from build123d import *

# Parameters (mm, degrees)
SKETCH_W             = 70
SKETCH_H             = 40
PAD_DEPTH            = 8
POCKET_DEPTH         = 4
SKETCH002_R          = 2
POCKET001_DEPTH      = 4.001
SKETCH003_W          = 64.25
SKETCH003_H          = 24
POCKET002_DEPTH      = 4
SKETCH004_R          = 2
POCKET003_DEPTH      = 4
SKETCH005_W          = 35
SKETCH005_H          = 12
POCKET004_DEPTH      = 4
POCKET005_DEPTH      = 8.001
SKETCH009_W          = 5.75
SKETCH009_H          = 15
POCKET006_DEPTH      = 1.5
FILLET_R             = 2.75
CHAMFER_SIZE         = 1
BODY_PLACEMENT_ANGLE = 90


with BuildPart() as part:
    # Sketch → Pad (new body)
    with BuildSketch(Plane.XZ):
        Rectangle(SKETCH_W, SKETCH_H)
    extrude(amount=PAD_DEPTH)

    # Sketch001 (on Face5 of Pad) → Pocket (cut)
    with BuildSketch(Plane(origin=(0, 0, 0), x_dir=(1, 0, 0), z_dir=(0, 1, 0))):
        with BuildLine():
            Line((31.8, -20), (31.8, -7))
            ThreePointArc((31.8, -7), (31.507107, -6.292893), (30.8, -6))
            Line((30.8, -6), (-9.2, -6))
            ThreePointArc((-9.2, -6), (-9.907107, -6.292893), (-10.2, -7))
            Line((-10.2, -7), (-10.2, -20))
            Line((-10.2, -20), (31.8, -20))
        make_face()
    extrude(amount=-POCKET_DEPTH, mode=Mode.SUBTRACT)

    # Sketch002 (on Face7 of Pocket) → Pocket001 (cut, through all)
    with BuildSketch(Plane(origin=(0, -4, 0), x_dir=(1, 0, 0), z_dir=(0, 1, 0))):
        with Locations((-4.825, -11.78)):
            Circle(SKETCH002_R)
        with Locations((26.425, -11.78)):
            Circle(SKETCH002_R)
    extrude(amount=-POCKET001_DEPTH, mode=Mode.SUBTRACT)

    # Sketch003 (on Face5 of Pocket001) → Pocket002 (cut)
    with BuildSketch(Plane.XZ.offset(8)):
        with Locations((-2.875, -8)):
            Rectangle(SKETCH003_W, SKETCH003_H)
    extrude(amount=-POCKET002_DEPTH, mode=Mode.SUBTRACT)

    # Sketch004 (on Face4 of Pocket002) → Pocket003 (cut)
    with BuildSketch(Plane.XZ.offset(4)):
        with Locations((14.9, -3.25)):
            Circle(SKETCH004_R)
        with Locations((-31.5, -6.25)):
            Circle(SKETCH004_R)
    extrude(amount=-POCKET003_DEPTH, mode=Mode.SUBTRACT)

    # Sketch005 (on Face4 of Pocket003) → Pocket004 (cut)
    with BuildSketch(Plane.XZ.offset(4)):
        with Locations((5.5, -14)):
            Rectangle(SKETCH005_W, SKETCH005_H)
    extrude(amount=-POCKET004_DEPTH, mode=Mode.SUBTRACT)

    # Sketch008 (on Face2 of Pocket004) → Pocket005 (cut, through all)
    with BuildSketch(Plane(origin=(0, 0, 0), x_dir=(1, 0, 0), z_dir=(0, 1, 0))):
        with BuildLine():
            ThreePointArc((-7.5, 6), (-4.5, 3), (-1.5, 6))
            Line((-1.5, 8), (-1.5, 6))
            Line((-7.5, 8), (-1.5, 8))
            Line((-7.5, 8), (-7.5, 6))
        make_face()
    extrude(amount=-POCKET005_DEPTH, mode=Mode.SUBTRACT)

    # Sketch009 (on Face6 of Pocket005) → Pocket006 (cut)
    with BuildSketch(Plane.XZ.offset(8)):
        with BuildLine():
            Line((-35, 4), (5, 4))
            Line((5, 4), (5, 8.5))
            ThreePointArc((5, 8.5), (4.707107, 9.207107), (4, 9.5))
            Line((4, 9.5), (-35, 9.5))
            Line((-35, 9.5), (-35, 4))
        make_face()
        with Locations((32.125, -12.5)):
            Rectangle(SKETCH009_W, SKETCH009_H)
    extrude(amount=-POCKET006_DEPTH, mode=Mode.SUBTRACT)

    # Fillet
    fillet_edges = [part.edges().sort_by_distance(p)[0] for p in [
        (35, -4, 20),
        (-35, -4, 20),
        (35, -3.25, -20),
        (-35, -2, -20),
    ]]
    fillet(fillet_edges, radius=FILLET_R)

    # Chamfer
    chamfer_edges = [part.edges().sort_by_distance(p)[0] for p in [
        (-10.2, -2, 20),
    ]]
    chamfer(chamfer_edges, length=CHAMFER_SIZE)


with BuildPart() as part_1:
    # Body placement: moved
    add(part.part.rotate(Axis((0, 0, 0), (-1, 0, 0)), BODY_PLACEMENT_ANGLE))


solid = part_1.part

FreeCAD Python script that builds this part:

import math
import FreeCAD as App
import Part
import Sketcher
from FreeCAD import Vector
Q = App.Units.Quantity


def edges_at(feature, points):
    """Names of the edges that pass closest to the given points."""
    edges = feature.Shape.Edges
    near = lambda p: min(range(len(edges)), key=lambda i: edges[i].distToShape(Part.Vertex(*p))[0])
    return sorted({f"Edge{near(p) + 1}" for p in points})

doc = App.newDocument("Part")
body = doc.addObject("PartDesign::Body", "Body")

# Sketch on XZ plane
sketch1 = body.newObject("Sketcher::SketchObject", "Sketch")
sketch1.AttachmentSupport = (doc.getObject("XZ_Plane"), [""])
sketch1.MapMode = "FlatFace"
sketch1.addGeometry([
    Part.LineSegment(Vector(-35, 20, 0), Vector(-35, -20, 0)),
    Part.LineSegment(Vector(-35, -20, 0), Vector(35, -20, 0)),
    Part.LineSegment(Vector(35, -20, 0), Vector(35, 20, 0)),
    Part.LineSegment(Vector(35, 20, 0), Vector(-35, 20, 0)),
], False)
sketch1.addConstraint([
    Sketcher.Constraint("Coincident", 0, 2, 1, 1),
    Sketcher.Constraint("Coincident", 1, 2, 2, 1),
    Sketcher.Constraint("Coincident", 2, 2, 3, 1),
    Sketcher.Constraint("Coincident", 3, 2, 0, 1),
    Sketcher.Constraint("Vertical", 0),
    Sketcher.Constraint("Horizontal", 1),
    Sketcher.Constraint("Vertical", 2),
    Sketcher.Constraint("Horizontal", 3),
    Sketcher.Constraint("Symmetric", 0, 2, 2, 2, -1, 1),
    Sketcher.Constraint("DistanceX", 1, 1, 1, 2, Q("70 mm")),
    Sketcher.Constraint("DistanceY", 0, 2, 0, 1, Q("40 mm")),
])
pad1 = body.newObject("PartDesign::Pad", "Pad")
pad1.Profile = sketch1
pad1.Length = 8

# Sketch on XZ plane
sketch2 = body.newObject("Sketcher::SketchObject", "Sketch001")
sketch2.AttachmentSupport = (doc.getObject("XZ_Plane"), [""])
sketch2.MapMode = "FlatFace"
sketch2.addGeometry([
    Part.LineSegment(Vector(31.8, 20, 0), Vector(31.8, 7, 0)),  # 0
    Part.ArcOfCircle(Part.Circle(Vector(30.8, 7, 0), Vector(0, 0, 1), 1), math.radians(-90), math.radians(0)),  # 1
    Part.LineSegment(Vector(30.8, 6, 0), Vector(-9.2, 6, 0)),  # 2
    Part.ArcOfCircle(Part.Circle(Vector(-9.2, 7, 0), Vector(0, 0, 1), 1), math.radians(180), math.radians(270)),  # 3
    Part.LineSegment(Vector(-10.2, 7, 0), Vector(-10.2, 20, 0)),  # 4
    Part.LineSegment(Vector(-10.2, 20, 0), Vector(31.8, 20, 0)),  # 5
], False)
sketch2.addConstraint([
    Sketcher.Constraint("Tangent", 0, 2, 1, 2),
    Sketcher.Constraint("Tangent", 1, 1, 2, 1),
    Sketcher.Constraint("Tangent", 2, 2, 3, 2),
    Sketcher.Constraint("Tangent", 3, 1, 4, 1),
    Sketcher.Constraint("Coincident", 4, 2, 5, 1),
    Sketcher.Constraint("Coincident", 5, 2, 0, 1),
    Sketcher.Constraint("Vertical", 0),
    Sketcher.Constraint("Horizontal", 2),
    Sketcher.Constraint("Vertical", 4),
    Sketcher.Constraint("Horizontal", 5),
    Sketcher.Constraint("Equal", 1, 3),
    Sketcher.Constraint("Radius", 1, Q("0.999999 mm")),
    Sketcher.Constraint("DistanceX", 2, 2, 2, 1, Q("40 mm")),
    Sketcher.Constraint("DistanceY", 0, 2, 0, 1, Q("13 mm")),
    Sketcher.Constraint("DistanceY", -1, 1, 1, 3, Q("6.999999 mm")),
    Sketcher.Constraint("DistanceX", -1, 1, 1, 3, Q("30.800001 mm")),
])
pocket1 = body.newObject("PartDesign::Pocket", "Pocket")
pocket1.Profile = sketch2
pocket1.Length = 4
pocket1.Reversed = True

# Sketch on XZ plane
sketch3 = body.newObject("Sketcher::SketchObject", "Sketch002")
sketch3.AttachmentSupport = (doc.getObject("XZ_Plane"), [""])
sketch3.MapMode = "FlatFace"
sketch3.AttachmentOffset = App.Placement(Vector(0, 0, 4), App.Rotation())
sketch3.addGeometry([
    Part.Circle(Vector(-4.8, 11.8, 0), Vector(0, 0, 1), 2),
    Part.Circle(Vector(26.4, 11.8, 0), Vector(0, 0, 1), 2),
], False)
sketch3.addConstraint([
    Sketcher.Constraint("Equal", 0, 1),
    Sketcher.Constraint("Horizontal", 0, 3, 1, 3),
    Sketcher.Constraint("Diameter", 0, Q("4 mm")),
    Sketcher.Constraint("DistanceY", -1, 1, 0, 3, Q("11.78 mm")),
    Sketcher.Constraint("DistanceX", 0, 3, 1, 3, Q("31.25 mm")),
    Sketcher.Constraint("DistanceX", 0, 3, -1, 1, Q("4.825 mm")),
])
pocket2 = body.newObject("PartDesign::Pocket", "Pocket001")
pocket2.Profile = sketch3
pocket2.Type = "ThroughAll"
pocket2.Reversed = True

# Sketch on XZ plane
sketch4 = body.newObject("Sketcher::SketchObject", "Sketch003")
sketch4.AttachmentSupport = (doc.getObject("XZ_Plane"), [""])
sketch4.MapMode = "FlatFace"
sketch4.AttachmentOffset = App.Placement(Vector(0, 0, 8), App.Rotation())
sketch4.addGeometry([
    Part.LineSegment(Vector(-35, 4, 0), Vector(-35, -20, 0)),
    Part.LineSegment(Vector(-35, -20, 0), Vector(29, -20, 0)),
    Part.LineSegment(Vector(29, -20, 0), Vector(29, 4, 0)),
    Part.LineSegment(Vector(29, 4, 0), Vector(-35, 4, 0)),
], False)
sketch4.addConstraint([
    Sketcher.Constraint("Coincident", 0, 2, 1, 1),
    Sketcher.Constraint("Coincident", 1, 2, 2, 1),
    Sketcher.Constraint("Coincident", 2, 2, 3, 1),
    Sketcher.Constraint("Coincident", 3, 2, 0, 1),
    Sketcher.Constraint("Vertical", 0),
    Sketcher.Constraint("Horizontal", 1),
    Sketcher.Constraint("Vertical", 2),
    Sketcher.Constraint("Horizontal", 3),
    Sketcher.Constraint("DistanceY", 0, 2, 0, 1, Q("24 mm")),
    Sketcher.Constraint("DistanceX", 0, 2, -1, 1, Q("35 mm")),
    Sketcher.Constraint("DistanceY", 0, 2, -1, 1, Q("20 mm")),
    Sketcher.Constraint("DistanceX", 1, 1, 1, 2, Q("64.25 mm")),
])
pocket3 = body.newObject("PartDesign::Pocket", "Pocket002")
pocket3.Profile = sketch4
pocket3.Length = 4

# Sketch on XZ plane
sketch5 = body.newObject("Sketcher::SketchObject", "Sketch004")
sketch5.AttachmentSupport = (doc.getObject("XZ_Plane"), [""])
sketch5.MapMode = "FlatFace"
sketch5.AttachmentOffset = App.Placement(Vector(0, 0, 4), App.Rotation())
sketch5.addGeometry([
    Part.Circle(Vector(14.9, -3.2, 0), Vector(0, 0, 1), 2),
    Part.Circle(Vector(-31.5, -6.2, 0), Vector(0, 0, 1), 2),
], False)
sketch5.addConstraint([
    Sketcher.Constraint("Equal", 0, 1),
    Sketcher.Constraint("Diameter", 0, Q("4 mm")),
    Sketcher.Constraint("DistanceY", 1, 3, 0, 3, Q("3 mm")),
    Sketcher.Constraint("DistanceX", -1, 1, 0, 3, Q("14.9 mm")),
    Sketcher.Constraint("DistanceX", 1, 3, -1, 1, Q("31.5 mm")),
    Sketcher.Constraint("DistanceY", 0, 3, -1, 1, Q("3.25 mm")),
])
pocket4 = body.newObject("PartDesign::Pocket", "Pocket003")
pocket4.Profile = sketch5
pocket4.Length = 4

# Sketch on XZ plane
sketch6 = body.newObject("Sketcher::SketchObject", "Sketch005")
sketch6.AttachmentSupport = (doc.getObject("XZ_Plane"), [""])
sketch6.MapMode = "FlatFace"
sketch6.AttachmentOffset = App.Placement(Vector(0, 0, 4), App.Rotation())
sketch6.addGeometry([
    Part.LineSegment(Vector(-12, -8, 0), Vector(-12, -20, 0)),
    Part.LineSegment(Vector(-12, -20, 0), Vector(23, -20, 0)),
    Part.LineSegment(Vector(23, -20, 0), Vector(23, -8, 0)),
    Part.LineSegment(Vector(23, -8, 0), Vector(-12, -8, 0)),
], False)
sketch6.addConstraint([
    Sketcher.Constraint("Coincident", 0, 2, 1, 1),
    Sketcher.Constraint("Coincident", 1, 2, 2, 1),
    Sketcher.Constraint("Coincident", 2, 2, 3, 1),
    Sketcher.Constraint("Coincident", 3, 2, 0, 1),
    Sketcher.Constraint("Vertical", 0),
    Sketcher.Constraint("Horizontal", 1),
    Sketcher.Constraint("Vertical", 2),
    Sketcher.Constraint("Horizontal", 3),
    Sketcher.Constraint("DistanceX", 1, 1, 1, 2, Q("35 mm")),
    Sketcher.Constraint("DistanceY", 0, 2, 0, 1, Q("12 mm")),
    Sketcher.Constraint("DistanceX", 0, 2, -1, 1, Q("12 mm")),
    Sketcher.Constraint("DistanceY", 0, 2, -1, 1, Q("20 mm")),
])
pocket5 = body.newObject("PartDesign::Pocket", "Pocket004")
pocket5.Profile = sketch6
pocket5.Length = 4

# Sketch on XZ plane
sketch7 = body.newObject("Sketcher::SketchObject", "Sketch006")
sketch7.AttachmentSupport = (doc.getObject("XZ_Plane"), [""])
sketch7.MapMode = "FlatFace"
sketch7.addGeometry([
    Part.ArcOfCircle(Part.Circle(Vector(-4.5, -6, 0), Vector(0, 0, 1), 3), math.radians(0), math.radians(180)),
    Part.LineSegment(Vector(-1.5, -6, 0), Vector(-1.5, -8, 0)),
    Part.LineSegment(Vector(-1.5, -8, 0), Vector(-7.5, -8, 0)),
    Part.LineSegment(Vector(-7.5, -8, 0), Vector(-7.5, -6, 0)),
], False)
sketch7.addConstraint([
    Sketcher.Constraint("Tangent", 0, 1, 1, 1),
    Sketcher.Constraint("Coincident", 1, 2, 2, 1),
    Sketcher.Constraint("Coincident", 2, 2, 3, 1),
    Sketcher.Constraint("Tangent", 3, 2, 0, 2),
    Sketcher.Constraint("Vertical", 1),
    Sketcher.Constraint("Horizontal", 2),
    Sketcher.Constraint("Vertical", 3),
    Sketcher.Constraint("Radius", 0, Q("3 mm")),
    Sketcher.Constraint("DistanceY", 1, 2, 1, 1, Q("2 mm")),
    Sketcher.Constraint("DistanceY", 0, 3, -1, 1, Q("6 mm")),
    Sketcher.Constraint("DistanceX", 0, 3, -1, 1, Q("4.5 mm")),
])
pocket6 = body.newObject("PartDesign::Pocket", "Pocket005")
pocket6.Profile = sketch7
pocket6.Type = "ThroughAll"
pocket6.Reversed = True

# Sketch on XZ plane
sketch8 = body.newObject("Sketcher::SketchObject", "Sketch007")
sketch8.AttachmentSupport = (doc.getObject("XZ_Plane"), [""])
sketch8.MapMode = "FlatFace"
sketch8.AttachmentOffset = App.Placement(Vector(0, 0, 8), App.Rotation())
sketch8.addGeometry([
    Part.LineSegment(Vector(-35, 4, 0), Vector(5, 4, 0)),  # 0
    Part.LineSegment(Vector(5, 4, 0), Vector(5, 8.5, 0)),  # 1
    Part.ArcOfCircle(Part.Circle(Vector(4, 8.5, 0), Vector(0, 0, 1), 1), math.radians(0), math.radians(90)),  # 2
    Part.LineSegment(Vector(4, 9.5, 0), Vector(-35, 9.5, 0)),  # 3
    Part.LineSegment(Vector(-35, 9.5, 0), Vector(-35, 4, 0)),  # 4
    Part.LineSegment(Vector(29.2, -5, 0), Vector(29.2, -20, 0)),  # 5
    Part.LineSegment(Vector(29.2, -20, 0), Vector(35, -20, 0)),  # 6
    Part.LineSegment(Vector(35, -20, 0), Vector(35, -5, 0)),  # 7
    Part.LineSegment(Vector(35, -5, 0), Vector(29.2, -5, 0)),  # 8
], False)
sketch8.addConstraint([
    Sketcher.Constraint("Coincident", 0, 2, 1, 1),
    Sketcher.Constraint("Tangent", 1, 2, 2, 1),
    Sketcher.Constraint("Tangent", 2, 2, 3, 1),
    Sketcher.Constraint("Coincident", 3, 2, 4, 1),
    Sketcher.Constraint("Coincident", 4, 2, 0, 1),
    Sketcher.Constraint("Coincident", 5, 2, 6, 1),
    Sketcher.Constraint("Coincident", 6, 2, 7, 1),
    Sketcher.Constraint("Coincident", 7, 2, 8, 1),
    Sketcher.Constraint("Coincident", 8, 2, 5, 1),
    Sketcher.Constraint("Horizontal", 0),
    Sketcher.Constraint("Vertical", 1),
    Sketcher.Constraint("Horizontal", 3),
    Sketcher.Constraint("Vertical", 4),
    Sketcher.Constraint("Vertical", 5),
    Sketcher.Constraint("Horizontal", 6),
    Sketcher.Constraint("Vertical", 7),
    Sketcher.Constraint("Horizontal", 8),
    Sketcher.Constraint("Radius", 2, Q("0.999999 mm")),
    Sketcher.Constraint("DistanceX", 0, 1, 0, 2, Q("40 mm")),
    Sketcher.Constraint("DistanceY", 5, 2, 5, 1, Q("15 mm")),
    Sketcher.Constraint("DistanceY", 1, 1, 1, 2, Q("4.5 mm")),
    Sketcher.Constraint("DistanceX", -1, 1, 2, 3, Q("4.000001 mm")),
    Sketcher.Constraint("DistanceY", -1, 1, 0, 2, Q("4 mm")),
    Sketcher.Constraint("DistanceY", 5, 2, -1, 1, Q("20 mm")),
    Sketcher.Constraint("DistanceX", -1, 1, 6, 2, Q("35 mm")),
    Sketcher.Constraint("DistanceX", 6, 1, 6, 2, Q("5.75 mm")),
])
pocket7 = body.newObject("PartDesign::Pocket", "Pocket006")
pocket7.Profile = sketch8
pocket7.Length = 1.5
doc.recompute()

fillet = body.newObject("PartDesign::Fillet", "Fillet")
fillet.Base = (pocket7, edges_at(pocket7, [
    (35, -4, 20),
    (-35, -4, 20),
    (35, -3.25, -20),
    (-35, -2, -20),
]))
fillet.Radius = 2.75
doc.recompute()

chamfer = body.newObject("PartDesign::Chamfer", "Chamfer")
chamfer.Base = (fillet, edges_at(fillet, [(-10.2, -2, 20)]))
chamfer.Size = 1
body2 = doc.addObject("PartDesign::Body", "Body001")
doc.recompute()

body.Placement = App.Placement(Vector(0, 0, 0), App.Rotation(Vector(-1, 0, 0), 90))
boolean = body2.newObject("PartDesign::Boolean", "Boolean")
boolean.Type = "Fuse"
boolean.addObjects([body])

doc.recompute()
